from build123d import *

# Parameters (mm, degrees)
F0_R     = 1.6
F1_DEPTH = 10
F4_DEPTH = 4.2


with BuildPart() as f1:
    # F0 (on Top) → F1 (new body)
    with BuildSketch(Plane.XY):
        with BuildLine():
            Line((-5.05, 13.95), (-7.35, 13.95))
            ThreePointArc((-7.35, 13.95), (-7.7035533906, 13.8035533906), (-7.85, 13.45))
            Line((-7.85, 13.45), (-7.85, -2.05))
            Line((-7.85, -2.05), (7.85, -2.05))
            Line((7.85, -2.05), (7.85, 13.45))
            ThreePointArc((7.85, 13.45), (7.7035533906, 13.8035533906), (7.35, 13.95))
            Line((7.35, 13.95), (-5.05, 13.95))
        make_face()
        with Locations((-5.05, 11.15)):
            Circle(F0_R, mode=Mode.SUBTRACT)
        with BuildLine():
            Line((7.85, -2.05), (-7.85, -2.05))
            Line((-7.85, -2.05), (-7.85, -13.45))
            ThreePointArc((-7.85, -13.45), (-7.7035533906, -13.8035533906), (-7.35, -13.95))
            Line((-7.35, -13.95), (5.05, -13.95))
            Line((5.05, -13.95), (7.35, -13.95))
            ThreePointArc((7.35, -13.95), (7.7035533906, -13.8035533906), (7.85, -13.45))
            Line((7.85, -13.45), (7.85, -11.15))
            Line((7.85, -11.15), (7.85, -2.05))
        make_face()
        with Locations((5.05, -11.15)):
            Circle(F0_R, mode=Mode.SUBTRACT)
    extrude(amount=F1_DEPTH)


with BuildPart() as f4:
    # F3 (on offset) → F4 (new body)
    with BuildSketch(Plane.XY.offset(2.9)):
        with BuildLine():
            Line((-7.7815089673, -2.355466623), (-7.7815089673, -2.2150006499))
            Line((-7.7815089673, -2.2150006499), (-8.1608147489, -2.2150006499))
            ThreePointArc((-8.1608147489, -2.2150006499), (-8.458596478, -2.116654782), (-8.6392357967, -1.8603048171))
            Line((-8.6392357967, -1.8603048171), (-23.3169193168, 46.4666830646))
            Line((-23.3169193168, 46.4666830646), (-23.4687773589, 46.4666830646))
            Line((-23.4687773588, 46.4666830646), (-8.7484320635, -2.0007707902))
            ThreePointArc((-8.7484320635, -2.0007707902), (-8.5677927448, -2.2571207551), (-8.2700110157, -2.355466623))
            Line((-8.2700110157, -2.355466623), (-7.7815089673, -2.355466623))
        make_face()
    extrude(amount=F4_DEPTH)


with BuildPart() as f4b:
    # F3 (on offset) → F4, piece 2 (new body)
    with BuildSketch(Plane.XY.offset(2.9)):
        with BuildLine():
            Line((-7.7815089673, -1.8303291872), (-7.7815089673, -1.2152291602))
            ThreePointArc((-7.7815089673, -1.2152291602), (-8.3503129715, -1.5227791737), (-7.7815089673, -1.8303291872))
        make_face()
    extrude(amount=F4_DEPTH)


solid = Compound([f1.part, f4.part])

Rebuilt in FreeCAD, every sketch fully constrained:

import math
import FreeCAD as App
import Part
import Sketcher
Q = App.Units.Quantity

doc = App.newDocument("Part")
body = doc.addObject("PartDesign::Body", "Body")

sketch1 = body.newObject("Sketcher::SketchObject", "Sketch")
sketch1.AttachmentSupport = (doc.getObject("XY_Plane"), [""])
sketch1.MapMode = "FlatFace"
sketch1.addGeometry([
    Part.ArcOfCircle(Part.Circle(App.Vector(-7.35, 13.45, 0), App.Vector(0, 0, 1), 0.5), math.radians(90), math.radians(180)),
    Part.LineSegment(App.Vector(-7.85, 13.45, 0), App.Vector(-7.85, -13.45, 0)),
    Part.ArcOfCircle(Part.Circle(App.Vector(-7.35, -13.45, 0), App.Vector(0, 0, 1), 0.5), math.radians(180), math.radians(270)),
    Part.LineSegment(App.Vector(-7.35, -13.95, 0), App.Vector(7.35, -13.95, 0)),
    Part.ArcOfCircle(Part.Circle(App.Vector(7.35, -13.45, 0), App.Vector(0, 0, 1), 0.5), math.radians(-90), math.radians(0)),
    Part.LineSegment(App.Vector(7.85, -13.45, 0), App.Vector(7.85, 13.45, 0)),
    Part.ArcOfCircle(Part.Circle(App.Vector(7.35, 13.45, 0), App.Vector(0, 0, 1), 0.5), math.radians(0), math.radians(90)),
    Part.LineSegment(App.Vector(7.35, 13.95, 0), App.Vector(-7.35, 13.95, 0)),
    Part.Circle(App.Vector(5.05, -11.15, 0), App.Vector(0, 0, 1), 1.6),
    Part.Circle(App.Vector(-5.05, 11.15, 0), App.Vector(0, 0, 1), 1.6),
], False)
sketch1.addConstraint([
    Sketcher.Constraint("Tangent", 0, 2, 1, 1),
    Sketcher.Constraint("Tangent", 1, 2, 2, 1),
    Sketcher.Constraint("Tangent", 2, 2, 3, 1),
    Sketcher.Constraint("Tangent", 3, 2, 4, 1),
    Sketcher.Constraint("Tangent", 4, 2, 5, 1),
    Sketcher.Constraint("Tangent", 5, 2, 6, 1),
    Sketcher.Constraint("Tangent", 6, 2, 7, 1),
    Sketcher.Constraint("Tangent", 7, 2, 0, 1),
    Sketcher.Constraint("Vertical", 1),
    Sketcher.Constraint("Horizontal", 3),
    Sketcher.Constraint("Vertical", 5),
    Sketcher.Constraint("Horizontal", 7),
    Sketcher.Constraint("Equal", 0, 2),
    Sketcher.Constraint("Equal", 2, 4),
    Sketcher.Constraint("Equal", 4, 6),
    Sketcher.Constraint("Equal", 8, 9),
    Sketcher.Constraint("Symmetric", 0, 3, 4, 3, -1, 1),
    Sketcher.Constraint("Symmetric", 8, 3, 9, 3, -1, 1),
    Sketcher.Constraint("Diameter", 8, Q("3.2 mm")),
    Sketcher.Constraint("Radius", 0, Q("0.5 mm")),
    Sketcher.Constraint("DistanceX", 3, 1, 3, 2, Q("14.7 mm")),
    Sketcher.Constraint("DistanceY", 1, 2, 1, 1, Q("26.9 mm")),
    Sketcher.Constraint("DistanceX", 8, 3, 4, 3, Q("2.3 mm")),
    Sketcher.Constraint("DistanceY", 4, 3, 8, 3, Q("2.3 mm")),
])
pad1 = body.newObject("PartDesign::Pad", "Pad")
pad1.Profile = sketch1
pad1.Length = 10
body2 = doc.addObject("PartDesign::Body", "Body001")

sketch2 = body2.newObject("Sketcher::SketchObject", "Sketch001")
sketch2.AttachmentSupport = (doc.getObject("XY_Plane001"), [""])
sketch2.MapMode = "FlatFace"
sketch2.AttachmentOffset = App.Placement(App.Vector(0, 0, 2.9), App.Rotation())
sketch2.addGeometry([
    Part.LineSegment(App.Vector(-7.781509, -2.355467, 0), App.Vector(-7.781509, -2.215001, 0)),
    Part.LineSegment(App.Vector(-7.781509, -2.215001, 0), App.Vector(-8.160815, -2.215001, 0)),
    Part.ArcOfCircle(Part.Circle(App.Vector(-8.160815, -1.715001, 0), App.Vector(0, 0, 1), 0.5), math.radians(-163.10562), math.radians(-90)),
    Part.LineSegment(App.Vector(-8.639236, -1.860305, 0), App.Vector(-23.316919, 46.466683, 0)),
    Part.LineSegment(App.Vector(-23.316919, 46.466683, 0), App.Vector(-23.468777, 46.466683, 0)),
    Part.LineSegment(App.Vector(-23.468777, 46.466683, 0), App.Vector(-8.748432, -2.000771, 0)),
    Part.ArcOfCircle(Part.Circle(App.Vector(-8.270011, -1.855467, 0), App.Vector(0, 0, 1), 0.5), math.radians(-163.10562), math.radians(-90)),
    Part.LineSegment(App.Vector(-8.270011, -2.355467, 0), App.Vector(-7.781509, -2.355467, 0)),
], False)
sketch2.addConstraint([
    Sketcher.Constraint("Coincident", 0, 2, 1, 1),
    Sketcher.Constraint("Coincident", 1, 2, 2, 2),
    Sketcher.Constraint("Coincident", 2, 1, 3, 1),
    Sketcher.Constraint("Coincident", 3, 2, 4, 1),
    Sketcher.Constraint("Coincident", 4, 2, 5, 1),
    Sketcher.Constraint("Coincident", 5, 2, 6, 1),
    Sketcher.Constraint("Coincident", 6, 2, 7, 1),
    Sketcher.Constraint("Coincident", 7, 2, 0, 1),
    Sketcher.Constraint("Vertical", 0),
    Sketcher.Constraint("Horizontal", 1),
    Sketcher.Constraint("Horizontal", 4),
    Sketcher.Constraint("Horizontal", 7),
    Sketcher.Constraint("Radius", 2, Q("0.5 mm")),
    Sketcher.Constraint("Radius", 6, Q("0.5 mm")),
    Sketcher.Constraint("DistanceY", 2, 3, -1, 1, Q("1.715001 mm")),
    Sketcher.Constraint("DistanceX", 4, 2, 4, 1, Q("0.151858 mm")),
    Sketcher.Constraint("DistanceX", 1, 2, 1, 1, Q("0.379306 mm")),
    Sketcher.Constraint("DistanceX", 7, 1, 7, 2, Q("0.488502 mm")),
    Sketcher.Constraint("DistanceY", 0, 1, 0, 2, Q("0.140466 mm")),
    Sketcher.Constraint("DistanceX", 6, 3, -1, 1, Q("8.270011 mm")),
    Sketcher.Constraint("DistanceX", 0, 2, -1, 1, Q("7.781509 mm")),
    Sketcher.Constraint("DistanceX", 3, 2, -1, 1, Q("23.316919 mm")),
    Sketcher.Constraint("DistanceY", 5, 2, -1, 1, Q("2.000771 mm")),
    Sketcher.Constraint("DistanceY", 2, 1, 6, 3, Q("0.004838 mm")),
    Sketcher.Constraint("DistanceX", 2, 1, 1, 2, Q("0.478421 mm")),
    Sketcher.Constraint("DistanceY", 6, 3, 3, 2, Q("48.32215 mm")),
])
pad2 = body2.newObject("PartDesign::Pad", "Pad001")
pad2.Profile = sketch2
pad2.Length = 4.2
body3 = doc.addObject("PartDesign::Body", "Body002")

sketch3 = body3.newObject("Sketcher::SketchObject", "Sketch002")
sketch3.AttachmentSupport = (doc.getObject("XY_Plane002"), [""])
sketch3.MapMode = "FlatFace"
sketch3.AttachmentOffset = App.Placement(App.Vector(0, 0, 2.9), App.Rotation())
sketch3.addGeometry([
    Part.LineSegment(App.Vector(-7.781509, -1.830329, 0), App.Vector(-7.781509, -1.215229, 0)),
    Part.ArcOfCircle(Part.Circle(App.Vector(-7.982765, -1.522779, 0), App.Vector(0, 0, 1), 0.367548), math.radians(56.799819), math.radians(303.200182)),
], False)
sketch3.addConstraint([
    Sketcher.Constraint("Coincident", 0, 1, 1, 2),
    Sketcher.Constraint("Coincident", 1, 1, 0, 2),
    Sketcher.Constraint("Vertical", 0),
    Sketcher.Constraint("DistanceY", 0, 1, 0, 2, Q("0.6151 mm")),
    Sketcher.Constraint("Radius", 1, Q("0.367548 mm")),
    Sketcher.Constraint("DistanceY", 1, 3, -1, 1, Q("1.522779 mm")),
    Sketcher.Constraint("DistanceX", 0, 1, -1, 1, Q("7.781509 mm")),
])
pad3 = body3.newObject("PartDesign::Pad", "Pad002")
pad3.Profile = sketch3
pad3.Length = 4.2
body3.Visibility = False

doc.recompute()
